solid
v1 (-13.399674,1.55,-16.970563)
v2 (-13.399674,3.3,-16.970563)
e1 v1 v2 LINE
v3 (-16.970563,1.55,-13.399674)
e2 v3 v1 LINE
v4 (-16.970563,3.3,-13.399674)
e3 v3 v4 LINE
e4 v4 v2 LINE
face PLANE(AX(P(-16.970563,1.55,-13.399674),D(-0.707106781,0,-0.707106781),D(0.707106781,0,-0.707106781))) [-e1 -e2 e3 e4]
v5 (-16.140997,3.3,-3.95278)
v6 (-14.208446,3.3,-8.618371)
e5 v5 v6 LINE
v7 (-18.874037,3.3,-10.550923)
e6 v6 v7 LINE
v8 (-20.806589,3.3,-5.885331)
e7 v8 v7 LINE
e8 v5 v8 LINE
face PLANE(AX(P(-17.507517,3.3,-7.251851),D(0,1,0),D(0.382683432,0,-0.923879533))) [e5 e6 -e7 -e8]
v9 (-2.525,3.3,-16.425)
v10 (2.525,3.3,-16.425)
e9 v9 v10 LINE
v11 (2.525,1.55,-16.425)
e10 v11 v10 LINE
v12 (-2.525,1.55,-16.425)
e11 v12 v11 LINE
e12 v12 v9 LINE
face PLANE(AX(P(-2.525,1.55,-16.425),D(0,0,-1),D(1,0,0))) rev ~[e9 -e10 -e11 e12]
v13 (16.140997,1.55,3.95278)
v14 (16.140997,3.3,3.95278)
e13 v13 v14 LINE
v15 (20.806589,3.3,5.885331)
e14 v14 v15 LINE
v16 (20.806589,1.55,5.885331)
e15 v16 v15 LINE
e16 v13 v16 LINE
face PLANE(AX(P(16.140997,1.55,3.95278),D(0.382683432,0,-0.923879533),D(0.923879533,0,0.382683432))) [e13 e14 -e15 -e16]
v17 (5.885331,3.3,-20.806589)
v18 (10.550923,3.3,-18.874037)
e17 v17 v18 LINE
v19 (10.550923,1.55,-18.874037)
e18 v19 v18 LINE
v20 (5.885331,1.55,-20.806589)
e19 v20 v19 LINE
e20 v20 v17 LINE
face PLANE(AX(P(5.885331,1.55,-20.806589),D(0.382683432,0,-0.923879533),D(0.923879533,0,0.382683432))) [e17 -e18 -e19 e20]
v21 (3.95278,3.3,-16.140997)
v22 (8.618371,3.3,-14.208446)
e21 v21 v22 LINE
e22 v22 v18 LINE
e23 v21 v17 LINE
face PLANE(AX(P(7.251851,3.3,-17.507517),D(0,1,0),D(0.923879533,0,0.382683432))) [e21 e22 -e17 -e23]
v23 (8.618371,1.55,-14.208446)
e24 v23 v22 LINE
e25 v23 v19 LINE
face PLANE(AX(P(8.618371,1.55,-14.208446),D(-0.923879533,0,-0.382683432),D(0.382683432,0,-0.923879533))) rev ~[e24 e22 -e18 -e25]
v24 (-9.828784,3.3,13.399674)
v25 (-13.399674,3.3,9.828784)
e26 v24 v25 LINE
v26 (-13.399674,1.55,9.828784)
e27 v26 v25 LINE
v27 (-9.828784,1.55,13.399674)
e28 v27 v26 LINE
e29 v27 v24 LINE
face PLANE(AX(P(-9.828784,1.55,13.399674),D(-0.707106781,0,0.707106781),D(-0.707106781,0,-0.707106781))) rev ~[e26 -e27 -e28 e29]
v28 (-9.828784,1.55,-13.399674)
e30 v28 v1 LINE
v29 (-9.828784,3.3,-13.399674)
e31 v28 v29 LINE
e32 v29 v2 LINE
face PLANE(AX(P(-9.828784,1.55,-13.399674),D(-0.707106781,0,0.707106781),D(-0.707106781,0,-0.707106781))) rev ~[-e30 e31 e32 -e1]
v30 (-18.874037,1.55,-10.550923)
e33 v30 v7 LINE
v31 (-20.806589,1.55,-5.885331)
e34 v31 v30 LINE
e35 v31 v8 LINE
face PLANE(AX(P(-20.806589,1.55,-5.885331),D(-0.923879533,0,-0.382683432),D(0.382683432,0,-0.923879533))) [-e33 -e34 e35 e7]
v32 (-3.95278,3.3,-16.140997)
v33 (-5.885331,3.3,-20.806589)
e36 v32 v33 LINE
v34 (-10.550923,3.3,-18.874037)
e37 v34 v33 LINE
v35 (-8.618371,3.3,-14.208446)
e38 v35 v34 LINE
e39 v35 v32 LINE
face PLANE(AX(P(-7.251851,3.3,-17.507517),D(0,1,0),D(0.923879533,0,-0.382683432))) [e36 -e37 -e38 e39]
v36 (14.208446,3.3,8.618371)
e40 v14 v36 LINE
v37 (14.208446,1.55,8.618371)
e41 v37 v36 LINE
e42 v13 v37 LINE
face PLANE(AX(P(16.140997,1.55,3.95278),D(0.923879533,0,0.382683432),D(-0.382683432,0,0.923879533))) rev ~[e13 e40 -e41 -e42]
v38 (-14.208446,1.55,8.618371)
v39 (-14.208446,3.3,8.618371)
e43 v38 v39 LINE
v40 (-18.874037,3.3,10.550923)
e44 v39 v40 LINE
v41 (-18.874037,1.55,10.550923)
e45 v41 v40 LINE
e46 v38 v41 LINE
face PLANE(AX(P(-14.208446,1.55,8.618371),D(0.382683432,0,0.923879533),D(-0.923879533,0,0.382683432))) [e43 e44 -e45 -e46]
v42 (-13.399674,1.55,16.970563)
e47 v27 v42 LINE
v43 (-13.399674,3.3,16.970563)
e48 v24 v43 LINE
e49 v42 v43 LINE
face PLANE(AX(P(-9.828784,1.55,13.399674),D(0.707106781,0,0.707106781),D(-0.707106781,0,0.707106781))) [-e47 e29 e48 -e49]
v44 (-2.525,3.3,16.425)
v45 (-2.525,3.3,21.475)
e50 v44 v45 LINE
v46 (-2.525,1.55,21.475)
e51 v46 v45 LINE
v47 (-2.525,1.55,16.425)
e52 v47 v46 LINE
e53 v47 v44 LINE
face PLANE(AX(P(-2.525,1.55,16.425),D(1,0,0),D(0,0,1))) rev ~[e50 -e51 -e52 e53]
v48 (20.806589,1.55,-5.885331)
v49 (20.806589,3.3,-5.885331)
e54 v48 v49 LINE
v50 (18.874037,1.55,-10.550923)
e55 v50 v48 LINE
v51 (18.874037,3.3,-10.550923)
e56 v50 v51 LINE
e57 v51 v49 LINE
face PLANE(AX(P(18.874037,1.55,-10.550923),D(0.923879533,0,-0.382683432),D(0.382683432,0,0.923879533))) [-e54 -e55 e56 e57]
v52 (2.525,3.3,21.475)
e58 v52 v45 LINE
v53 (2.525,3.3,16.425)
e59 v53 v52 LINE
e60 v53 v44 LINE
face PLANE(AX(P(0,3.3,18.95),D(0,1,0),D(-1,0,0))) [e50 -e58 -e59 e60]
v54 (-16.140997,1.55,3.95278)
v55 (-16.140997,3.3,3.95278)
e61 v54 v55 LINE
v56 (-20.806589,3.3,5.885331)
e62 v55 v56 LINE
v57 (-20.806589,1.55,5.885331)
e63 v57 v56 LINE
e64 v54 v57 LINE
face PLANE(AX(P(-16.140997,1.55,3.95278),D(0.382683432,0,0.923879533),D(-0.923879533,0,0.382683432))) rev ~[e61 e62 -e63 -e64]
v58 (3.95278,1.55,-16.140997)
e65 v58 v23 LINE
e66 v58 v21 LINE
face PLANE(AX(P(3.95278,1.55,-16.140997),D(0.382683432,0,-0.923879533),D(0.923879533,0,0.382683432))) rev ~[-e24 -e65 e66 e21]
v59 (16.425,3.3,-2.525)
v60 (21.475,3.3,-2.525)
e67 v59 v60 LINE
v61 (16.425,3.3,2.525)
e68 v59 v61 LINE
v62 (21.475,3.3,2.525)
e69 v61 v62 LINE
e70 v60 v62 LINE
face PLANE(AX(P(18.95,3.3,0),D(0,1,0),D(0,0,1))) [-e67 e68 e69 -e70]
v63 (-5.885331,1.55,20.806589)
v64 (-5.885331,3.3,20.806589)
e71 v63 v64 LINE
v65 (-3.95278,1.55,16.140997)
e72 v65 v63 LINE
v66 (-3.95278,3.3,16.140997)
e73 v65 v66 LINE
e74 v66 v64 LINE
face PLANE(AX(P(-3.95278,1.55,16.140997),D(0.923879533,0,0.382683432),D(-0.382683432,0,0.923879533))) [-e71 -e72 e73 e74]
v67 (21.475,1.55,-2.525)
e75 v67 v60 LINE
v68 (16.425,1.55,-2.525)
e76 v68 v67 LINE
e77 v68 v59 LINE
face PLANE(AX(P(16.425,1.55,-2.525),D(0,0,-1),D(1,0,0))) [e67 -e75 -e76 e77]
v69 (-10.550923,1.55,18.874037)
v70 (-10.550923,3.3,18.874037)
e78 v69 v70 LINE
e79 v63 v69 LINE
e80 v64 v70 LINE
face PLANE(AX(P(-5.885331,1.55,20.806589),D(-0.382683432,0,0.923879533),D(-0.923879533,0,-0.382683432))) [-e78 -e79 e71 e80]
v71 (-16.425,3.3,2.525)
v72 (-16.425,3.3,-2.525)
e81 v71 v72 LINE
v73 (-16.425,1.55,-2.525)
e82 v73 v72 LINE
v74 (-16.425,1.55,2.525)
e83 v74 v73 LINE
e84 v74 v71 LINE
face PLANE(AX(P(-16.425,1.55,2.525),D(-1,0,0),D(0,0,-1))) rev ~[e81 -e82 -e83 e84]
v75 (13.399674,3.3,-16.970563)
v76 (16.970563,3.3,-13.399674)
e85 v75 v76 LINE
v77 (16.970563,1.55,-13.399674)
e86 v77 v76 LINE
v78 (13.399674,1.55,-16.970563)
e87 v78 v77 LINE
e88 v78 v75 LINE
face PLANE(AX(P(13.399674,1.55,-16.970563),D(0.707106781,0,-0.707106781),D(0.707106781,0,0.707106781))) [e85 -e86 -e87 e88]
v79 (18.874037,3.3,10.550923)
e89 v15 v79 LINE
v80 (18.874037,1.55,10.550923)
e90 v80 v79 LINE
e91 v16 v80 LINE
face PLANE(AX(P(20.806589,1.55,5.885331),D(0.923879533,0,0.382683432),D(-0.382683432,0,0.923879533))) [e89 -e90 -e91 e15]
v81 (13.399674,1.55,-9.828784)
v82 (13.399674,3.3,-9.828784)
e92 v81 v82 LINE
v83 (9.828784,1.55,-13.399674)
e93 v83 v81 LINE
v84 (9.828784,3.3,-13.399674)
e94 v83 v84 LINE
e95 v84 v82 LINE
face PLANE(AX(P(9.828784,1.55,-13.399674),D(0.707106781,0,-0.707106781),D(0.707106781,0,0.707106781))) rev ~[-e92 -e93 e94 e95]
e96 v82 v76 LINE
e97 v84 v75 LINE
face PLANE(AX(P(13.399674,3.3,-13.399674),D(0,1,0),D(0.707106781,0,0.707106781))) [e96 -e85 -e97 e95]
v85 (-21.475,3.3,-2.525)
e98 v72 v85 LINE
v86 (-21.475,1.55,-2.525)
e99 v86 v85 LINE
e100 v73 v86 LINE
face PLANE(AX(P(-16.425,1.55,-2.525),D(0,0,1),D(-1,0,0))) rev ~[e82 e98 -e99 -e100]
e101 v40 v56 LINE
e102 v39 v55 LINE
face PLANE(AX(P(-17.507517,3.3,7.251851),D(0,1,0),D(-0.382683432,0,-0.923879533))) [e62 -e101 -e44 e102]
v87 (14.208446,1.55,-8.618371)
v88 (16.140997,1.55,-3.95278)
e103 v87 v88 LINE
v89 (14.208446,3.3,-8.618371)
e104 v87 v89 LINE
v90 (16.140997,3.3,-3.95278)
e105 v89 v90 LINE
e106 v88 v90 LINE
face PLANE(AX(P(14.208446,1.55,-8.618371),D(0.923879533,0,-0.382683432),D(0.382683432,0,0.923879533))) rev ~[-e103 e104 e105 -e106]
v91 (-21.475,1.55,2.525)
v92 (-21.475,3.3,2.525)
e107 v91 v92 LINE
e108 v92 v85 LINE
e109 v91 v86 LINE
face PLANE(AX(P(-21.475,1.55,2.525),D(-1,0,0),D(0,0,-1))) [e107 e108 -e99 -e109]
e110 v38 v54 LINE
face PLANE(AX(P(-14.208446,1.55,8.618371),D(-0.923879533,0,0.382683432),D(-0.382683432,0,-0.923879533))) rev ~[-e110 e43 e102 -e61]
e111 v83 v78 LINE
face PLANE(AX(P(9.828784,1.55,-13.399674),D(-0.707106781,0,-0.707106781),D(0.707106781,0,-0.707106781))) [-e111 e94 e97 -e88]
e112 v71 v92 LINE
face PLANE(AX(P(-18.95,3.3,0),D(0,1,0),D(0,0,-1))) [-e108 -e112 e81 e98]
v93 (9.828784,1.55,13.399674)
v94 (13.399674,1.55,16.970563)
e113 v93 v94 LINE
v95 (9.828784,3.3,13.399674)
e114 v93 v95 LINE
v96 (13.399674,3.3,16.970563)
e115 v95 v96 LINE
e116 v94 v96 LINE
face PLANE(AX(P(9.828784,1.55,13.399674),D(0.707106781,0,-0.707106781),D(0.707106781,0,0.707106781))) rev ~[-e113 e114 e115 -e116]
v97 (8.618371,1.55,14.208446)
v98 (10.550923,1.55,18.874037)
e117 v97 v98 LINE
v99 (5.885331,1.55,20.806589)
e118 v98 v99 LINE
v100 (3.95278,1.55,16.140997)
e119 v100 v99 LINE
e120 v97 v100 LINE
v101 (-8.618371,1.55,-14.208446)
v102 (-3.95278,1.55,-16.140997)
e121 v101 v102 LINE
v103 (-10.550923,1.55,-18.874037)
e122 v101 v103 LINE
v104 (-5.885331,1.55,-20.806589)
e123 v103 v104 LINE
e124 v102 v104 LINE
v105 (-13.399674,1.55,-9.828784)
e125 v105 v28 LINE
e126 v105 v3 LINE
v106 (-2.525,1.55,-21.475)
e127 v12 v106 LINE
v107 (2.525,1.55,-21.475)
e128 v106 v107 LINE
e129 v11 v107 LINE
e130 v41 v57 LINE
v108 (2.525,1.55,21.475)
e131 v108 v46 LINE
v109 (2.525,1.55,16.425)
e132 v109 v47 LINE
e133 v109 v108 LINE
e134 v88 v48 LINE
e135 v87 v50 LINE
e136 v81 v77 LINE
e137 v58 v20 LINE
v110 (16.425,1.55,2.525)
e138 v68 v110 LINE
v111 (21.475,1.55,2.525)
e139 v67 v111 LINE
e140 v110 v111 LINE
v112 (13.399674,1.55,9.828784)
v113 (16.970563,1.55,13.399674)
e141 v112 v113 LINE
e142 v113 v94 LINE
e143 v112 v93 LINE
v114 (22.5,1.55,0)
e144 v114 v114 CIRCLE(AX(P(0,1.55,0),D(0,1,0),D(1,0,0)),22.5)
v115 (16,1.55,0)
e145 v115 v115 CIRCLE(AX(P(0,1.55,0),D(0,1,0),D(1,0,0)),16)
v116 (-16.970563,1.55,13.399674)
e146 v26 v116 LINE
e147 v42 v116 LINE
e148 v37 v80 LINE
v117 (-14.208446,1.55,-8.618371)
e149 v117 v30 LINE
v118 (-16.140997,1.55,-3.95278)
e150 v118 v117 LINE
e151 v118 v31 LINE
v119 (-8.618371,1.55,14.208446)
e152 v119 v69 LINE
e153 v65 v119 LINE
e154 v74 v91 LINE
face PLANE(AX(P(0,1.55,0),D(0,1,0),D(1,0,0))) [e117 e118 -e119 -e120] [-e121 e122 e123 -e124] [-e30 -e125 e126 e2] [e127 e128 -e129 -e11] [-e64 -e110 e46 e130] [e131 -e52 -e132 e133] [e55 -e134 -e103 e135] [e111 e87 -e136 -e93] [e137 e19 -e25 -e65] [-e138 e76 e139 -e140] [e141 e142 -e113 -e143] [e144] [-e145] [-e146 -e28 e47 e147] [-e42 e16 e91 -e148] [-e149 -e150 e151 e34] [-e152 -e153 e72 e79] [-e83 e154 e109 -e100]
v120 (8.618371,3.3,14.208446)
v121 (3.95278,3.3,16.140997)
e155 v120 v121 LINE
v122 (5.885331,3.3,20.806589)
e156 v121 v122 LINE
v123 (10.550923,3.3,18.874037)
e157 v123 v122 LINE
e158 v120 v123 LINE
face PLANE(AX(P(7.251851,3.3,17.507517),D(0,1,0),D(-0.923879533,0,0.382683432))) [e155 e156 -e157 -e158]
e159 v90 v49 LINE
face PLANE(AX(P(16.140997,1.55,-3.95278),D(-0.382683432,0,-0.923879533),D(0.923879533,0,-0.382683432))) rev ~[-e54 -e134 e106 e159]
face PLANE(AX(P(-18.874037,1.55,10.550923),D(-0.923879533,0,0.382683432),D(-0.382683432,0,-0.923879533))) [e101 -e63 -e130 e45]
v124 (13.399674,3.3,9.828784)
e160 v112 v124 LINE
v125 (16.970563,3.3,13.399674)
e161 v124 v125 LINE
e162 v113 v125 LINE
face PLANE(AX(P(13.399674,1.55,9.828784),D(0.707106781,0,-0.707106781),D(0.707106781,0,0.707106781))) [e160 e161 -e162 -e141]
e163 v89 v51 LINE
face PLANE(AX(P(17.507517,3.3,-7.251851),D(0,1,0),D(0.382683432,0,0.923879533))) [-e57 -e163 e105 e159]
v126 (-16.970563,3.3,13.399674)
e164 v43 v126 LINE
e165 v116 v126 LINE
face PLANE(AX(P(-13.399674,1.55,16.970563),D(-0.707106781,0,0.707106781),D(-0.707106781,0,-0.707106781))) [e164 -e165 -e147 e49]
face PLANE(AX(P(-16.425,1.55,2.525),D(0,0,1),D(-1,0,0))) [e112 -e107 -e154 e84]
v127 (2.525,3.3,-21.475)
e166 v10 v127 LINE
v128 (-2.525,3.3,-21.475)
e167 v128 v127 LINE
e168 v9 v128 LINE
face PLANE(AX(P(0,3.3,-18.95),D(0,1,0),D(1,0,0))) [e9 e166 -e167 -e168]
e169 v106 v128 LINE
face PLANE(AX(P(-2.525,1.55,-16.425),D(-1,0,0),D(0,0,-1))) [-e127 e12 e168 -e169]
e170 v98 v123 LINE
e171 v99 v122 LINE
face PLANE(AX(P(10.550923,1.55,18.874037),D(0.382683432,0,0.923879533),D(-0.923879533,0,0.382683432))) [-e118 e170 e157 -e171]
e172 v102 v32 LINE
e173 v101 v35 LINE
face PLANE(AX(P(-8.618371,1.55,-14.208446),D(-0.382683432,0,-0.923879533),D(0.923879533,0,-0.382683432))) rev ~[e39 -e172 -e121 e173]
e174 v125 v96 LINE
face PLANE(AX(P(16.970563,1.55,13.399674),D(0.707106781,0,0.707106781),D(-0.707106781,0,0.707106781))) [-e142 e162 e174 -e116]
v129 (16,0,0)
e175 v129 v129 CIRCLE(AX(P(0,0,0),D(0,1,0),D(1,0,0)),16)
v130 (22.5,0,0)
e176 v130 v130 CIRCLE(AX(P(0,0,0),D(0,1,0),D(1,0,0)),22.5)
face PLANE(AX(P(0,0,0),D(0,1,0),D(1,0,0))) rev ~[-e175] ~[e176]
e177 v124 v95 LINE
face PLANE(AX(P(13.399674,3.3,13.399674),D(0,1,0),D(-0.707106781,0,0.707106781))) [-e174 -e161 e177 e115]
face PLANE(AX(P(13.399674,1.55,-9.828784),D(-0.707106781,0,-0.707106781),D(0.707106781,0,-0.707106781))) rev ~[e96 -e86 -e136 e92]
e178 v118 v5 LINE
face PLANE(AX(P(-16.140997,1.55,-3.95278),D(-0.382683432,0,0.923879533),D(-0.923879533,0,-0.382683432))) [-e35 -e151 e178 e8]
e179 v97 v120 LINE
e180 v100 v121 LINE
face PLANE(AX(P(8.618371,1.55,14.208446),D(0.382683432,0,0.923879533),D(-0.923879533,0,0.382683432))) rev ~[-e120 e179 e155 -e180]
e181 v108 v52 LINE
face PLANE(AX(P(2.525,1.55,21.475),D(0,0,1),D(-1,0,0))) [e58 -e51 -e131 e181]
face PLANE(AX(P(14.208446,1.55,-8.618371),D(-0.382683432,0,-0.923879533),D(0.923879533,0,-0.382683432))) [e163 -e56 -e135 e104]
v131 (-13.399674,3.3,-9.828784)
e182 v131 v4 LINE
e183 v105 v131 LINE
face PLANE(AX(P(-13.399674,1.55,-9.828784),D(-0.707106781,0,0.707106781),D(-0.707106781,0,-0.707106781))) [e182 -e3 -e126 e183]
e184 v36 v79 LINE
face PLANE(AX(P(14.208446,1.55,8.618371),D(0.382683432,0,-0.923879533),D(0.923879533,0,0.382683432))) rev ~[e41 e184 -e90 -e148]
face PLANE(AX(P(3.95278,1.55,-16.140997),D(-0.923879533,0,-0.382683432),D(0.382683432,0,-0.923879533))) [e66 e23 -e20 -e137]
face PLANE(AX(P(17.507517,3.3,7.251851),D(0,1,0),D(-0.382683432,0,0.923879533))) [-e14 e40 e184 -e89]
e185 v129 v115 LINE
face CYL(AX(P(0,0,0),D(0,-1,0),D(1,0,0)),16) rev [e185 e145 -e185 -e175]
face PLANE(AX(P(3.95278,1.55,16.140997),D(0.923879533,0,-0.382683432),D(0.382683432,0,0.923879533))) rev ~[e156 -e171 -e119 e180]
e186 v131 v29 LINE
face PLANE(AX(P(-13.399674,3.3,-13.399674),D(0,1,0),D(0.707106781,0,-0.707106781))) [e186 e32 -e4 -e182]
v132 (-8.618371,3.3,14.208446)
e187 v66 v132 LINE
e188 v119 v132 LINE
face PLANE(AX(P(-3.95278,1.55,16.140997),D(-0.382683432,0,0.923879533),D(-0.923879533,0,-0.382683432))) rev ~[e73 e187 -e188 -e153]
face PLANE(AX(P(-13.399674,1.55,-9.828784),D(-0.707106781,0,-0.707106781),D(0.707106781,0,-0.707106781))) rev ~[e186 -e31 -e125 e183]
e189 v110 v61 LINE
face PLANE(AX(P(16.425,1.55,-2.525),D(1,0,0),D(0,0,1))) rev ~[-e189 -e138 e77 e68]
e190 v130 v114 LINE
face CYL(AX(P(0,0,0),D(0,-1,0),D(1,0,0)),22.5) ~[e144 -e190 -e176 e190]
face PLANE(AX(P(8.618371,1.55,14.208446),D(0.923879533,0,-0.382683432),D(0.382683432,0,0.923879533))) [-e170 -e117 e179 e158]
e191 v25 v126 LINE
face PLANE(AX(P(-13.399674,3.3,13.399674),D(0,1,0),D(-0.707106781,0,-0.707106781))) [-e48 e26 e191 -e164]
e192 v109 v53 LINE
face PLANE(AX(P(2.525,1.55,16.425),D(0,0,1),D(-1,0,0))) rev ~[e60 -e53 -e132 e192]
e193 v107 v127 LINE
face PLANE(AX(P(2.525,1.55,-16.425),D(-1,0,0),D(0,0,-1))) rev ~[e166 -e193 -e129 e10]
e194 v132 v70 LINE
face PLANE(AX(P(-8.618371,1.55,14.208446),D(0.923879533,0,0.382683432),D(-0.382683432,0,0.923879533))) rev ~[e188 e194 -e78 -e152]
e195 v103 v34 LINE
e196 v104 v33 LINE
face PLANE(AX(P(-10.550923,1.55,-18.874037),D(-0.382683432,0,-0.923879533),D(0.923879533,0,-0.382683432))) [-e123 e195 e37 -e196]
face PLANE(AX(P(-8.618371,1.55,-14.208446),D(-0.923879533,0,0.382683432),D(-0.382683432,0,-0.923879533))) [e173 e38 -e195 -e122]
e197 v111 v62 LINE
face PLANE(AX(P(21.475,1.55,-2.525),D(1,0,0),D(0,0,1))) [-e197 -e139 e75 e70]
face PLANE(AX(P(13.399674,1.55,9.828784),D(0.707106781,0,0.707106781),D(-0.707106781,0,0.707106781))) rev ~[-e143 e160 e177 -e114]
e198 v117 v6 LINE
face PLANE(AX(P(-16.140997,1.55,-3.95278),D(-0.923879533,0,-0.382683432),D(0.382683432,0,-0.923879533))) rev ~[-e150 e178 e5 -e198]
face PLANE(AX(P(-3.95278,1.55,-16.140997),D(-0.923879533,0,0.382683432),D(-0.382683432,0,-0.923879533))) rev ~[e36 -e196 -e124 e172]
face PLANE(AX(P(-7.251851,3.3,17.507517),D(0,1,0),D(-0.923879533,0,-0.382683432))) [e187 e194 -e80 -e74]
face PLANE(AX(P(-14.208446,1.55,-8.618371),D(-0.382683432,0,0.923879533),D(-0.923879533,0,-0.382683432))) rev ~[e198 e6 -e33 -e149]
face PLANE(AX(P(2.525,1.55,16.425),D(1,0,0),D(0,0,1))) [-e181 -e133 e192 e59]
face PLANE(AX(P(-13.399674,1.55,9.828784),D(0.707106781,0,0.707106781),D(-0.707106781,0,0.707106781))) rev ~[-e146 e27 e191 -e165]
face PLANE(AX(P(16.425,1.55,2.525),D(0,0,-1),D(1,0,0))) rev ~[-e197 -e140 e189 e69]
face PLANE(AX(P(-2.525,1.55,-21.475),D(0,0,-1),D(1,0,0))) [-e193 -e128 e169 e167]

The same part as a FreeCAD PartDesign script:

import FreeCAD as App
import Part
import Sketcher

doc = App.newDocument("Part")
body = doc.addObject("PartDesign::Body", "Body")

sketch1 = doc.addObject("Sketcher::SketchObject", "Sketch")
body.addObject(sketch1)
sketch1.AttachmentSupport = (doc.XZ_Plane, [""])
sketch1.MapMode = "FlatFace"
sketch1.addGeometry(Part.Circle(App.Vector(0, 0, 0), App.Vector(0, 0, 1), 22), False)
sketch1.addGeometry(Part.Circle(App.Vector(0, 0, 0), App.Vector(0, 0, 1), 16), False)
sketch1.addConstraint(Sketcher.Constraint("Coincident", 0, 3, -1, 1))
sketch1.addConstraint(Sketcher.Constraint("Coincident", 1, 3, -1, 1))
sketch1.addConstraint(Sketcher.Constraint("Diameter", 0, 45.0))
sketch1.addConstraint(Sketcher.Constraint("Diameter", 1, 32.0))
pad1 = doc.addObject("PartDesign::Pad", "Pad")
body.addObject(pad1)
pad1.Profile = sketch1
pad1.Length = 1.55
pad1.Reversed = True

sketch2 = doc.addObject("Sketcher::SketchObject", "Sketch001")
body.addObject(sketch2)
sketch2.AttachmentSupport = (doc.XZ_Plane, [""])
sketch2.MapMode = "FlatFace"
sketch2.AttachmentOffset = App.Placement(App.Vector(0, 0, -1.55), App.Rotation())
sketch2.addGeometry(Part.LineSegment(App.Vector(-3, -21, 0), App.Vector(-3, -16, 0)), False)
sketch2.addGeometry(Part.LineSegment(App.Vector(-3, -16, 0), App.Vector(3, -16, 0)), False)
sketch2.addGeometry(Part.LineSegment(App.Vector(3, -16, 0), App.Vector(3, -21, 0)), False)
sketch2.addGeometry(Part.LineSegment(App.Vector(3, -21, 0), App.Vector(-3, -21, 0)), False)
sketch2.addConstraint(Sketcher.Constraint("Coincident", 0, 2, 1, 1))
sketch2.addConstraint(Sketcher.Constraint("Coincident", 1, 2, 2, 1))
sketch2.addConstraint(Sketcher.Constraint("Coincident", 2, 2, 3, 1))
sketch2.addConstraint(Sketcher.Constraint("Coincident", 3, 2, 0, 1))
sketch2.addConstraint(Sketcher.Constraint("Vertical", 0))
sketch2.addConstraint(Sketcher.Constraint("Horizontal", 1))
sketch2.addConstraint(Sketcher.Constraint("Vertical", 2))
sketch2.addConstraint(Sketcher.Constraint("Horizontal", 3))
sketch2.addConstraint(Sketcher.Constraint("Equal", 3, 0))
sketch2.addConstraint(Sketcher.Constraint("DistanceX", 1, 1, 1, 2, 5.05))
sketch2.addConstraint(Sketcher.Constraint("DistanceX", 0, 2, -1, 1, 2.525))
sketch2.addConstraint(Sketcher.Constraint("DistanceY", 0, 2, -1, 1, 16.425))
pad2 = doc.addObject("PartDesign::Pad", "Pad001")
body.addObject(pad2)
pad2.Profile = sketch2
pad2.Length = 1.75
pad2.Reversed = True
doc.recompute()

polarpattern = doc.addObject("PartDesign::PolarPattern", "PolarPattern")
body.addObject(polarpattern)
polarpattern.Originals = [pad2]
polarpattern.Axis = (doc.Y_Axis, [""])
polarpattern.Angle = 360
polarpattern.Occurrences = 16
body.Tip = polarpattern

doc.recompute()
